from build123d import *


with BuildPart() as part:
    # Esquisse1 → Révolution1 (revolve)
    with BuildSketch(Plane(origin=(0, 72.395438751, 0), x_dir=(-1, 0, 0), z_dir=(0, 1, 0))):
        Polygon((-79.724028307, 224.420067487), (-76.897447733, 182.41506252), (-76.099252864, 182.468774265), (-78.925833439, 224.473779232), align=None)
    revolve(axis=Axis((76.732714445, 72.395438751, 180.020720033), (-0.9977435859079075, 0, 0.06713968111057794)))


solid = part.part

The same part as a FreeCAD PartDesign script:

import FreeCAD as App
import Part
import Sketcher
from FreeCAD import Vector


def add_polygon(sketch, points):
    """Adds a closed chain of lines whose ends are joined by coincident constraints."""
    first, n = sketch.GeometryCount, len(points)
    for a, b in zip(points, points[1:] + points[:1]):
        sketch.addGeometry(Part.LineSegment(App.Vector(*a, 0), App.Vector(*b, 0)), False)
    for i in range(n):
        sketch.addConstraint(Sketcher.Constraint("Coincident", first + i, 2, first + (i + 1) % n, 1))

doc = App.newDocument("Part")
body = doc.addObject("PartDesign::Body", "Body")

# Sketch on XZ plane
sketch1 = body.newObject("Sketcher::SketchObject", "Sketch")
sketch1.AttachmentSupport = (doc.getObject("XZ_Plane"), [""])
sketch1.MapMode = "FlatFace"
sketch1.AttachmentOffset = App.Placement(Vector(0, 0, -72.395439), App.Rotation())
add_polygon(sketch1, [(79.7, 224.4), (76.9, 182.4), (76.1, 182.5), (78.9, 224.5)])  # lines 0-3
sketch1.addGeometry(Part.LineSegment(Vector(76.7, 180, 0), Vector(75.9, 180.1, 0)), True)  # axis
sketch1.addConstraint([
    Sketcher.Constraint("Perpendicular", 0, 1),
    Sketcher.Constraint("Perpendicular", 1, 2),
    Sketcher.Constraint("Perpendicular", 2, 3),
    Sketcher.Constraint("Parallel", 3, 4),
    Sketcher.Constraint("Equal", 3, 4),
    Sketcher.Constraint("Distance", 0, 42.1),
    Sketcher.Constraint("Distance", 1, 0.8),
    Sketcher.Constraint("DistanceY", 4, 1, 2, 2, 44.453301),
    Sketcher.Constraint("DistanceY", -1, 1, 2, 2, 224.473779),
    Sketcher.Constraint("DistanceX", -1, 1, 3, 2, 79.724028),
    Sketcher.Constraint("DistanceY", -1, 1, 4, 2, 180.07419),
    Sketcher.Constraint("DistanceX", 1, 2, 4, 1, 0.63706),
])
revolution = body.newObject("PartDesign::Revolution", "Revolution")
revolution.Profile = sketch1
revolution.ReferenceAxis = (sketch1, ["Axis0"])
revolution.Angle = 360

doc.recompute()
